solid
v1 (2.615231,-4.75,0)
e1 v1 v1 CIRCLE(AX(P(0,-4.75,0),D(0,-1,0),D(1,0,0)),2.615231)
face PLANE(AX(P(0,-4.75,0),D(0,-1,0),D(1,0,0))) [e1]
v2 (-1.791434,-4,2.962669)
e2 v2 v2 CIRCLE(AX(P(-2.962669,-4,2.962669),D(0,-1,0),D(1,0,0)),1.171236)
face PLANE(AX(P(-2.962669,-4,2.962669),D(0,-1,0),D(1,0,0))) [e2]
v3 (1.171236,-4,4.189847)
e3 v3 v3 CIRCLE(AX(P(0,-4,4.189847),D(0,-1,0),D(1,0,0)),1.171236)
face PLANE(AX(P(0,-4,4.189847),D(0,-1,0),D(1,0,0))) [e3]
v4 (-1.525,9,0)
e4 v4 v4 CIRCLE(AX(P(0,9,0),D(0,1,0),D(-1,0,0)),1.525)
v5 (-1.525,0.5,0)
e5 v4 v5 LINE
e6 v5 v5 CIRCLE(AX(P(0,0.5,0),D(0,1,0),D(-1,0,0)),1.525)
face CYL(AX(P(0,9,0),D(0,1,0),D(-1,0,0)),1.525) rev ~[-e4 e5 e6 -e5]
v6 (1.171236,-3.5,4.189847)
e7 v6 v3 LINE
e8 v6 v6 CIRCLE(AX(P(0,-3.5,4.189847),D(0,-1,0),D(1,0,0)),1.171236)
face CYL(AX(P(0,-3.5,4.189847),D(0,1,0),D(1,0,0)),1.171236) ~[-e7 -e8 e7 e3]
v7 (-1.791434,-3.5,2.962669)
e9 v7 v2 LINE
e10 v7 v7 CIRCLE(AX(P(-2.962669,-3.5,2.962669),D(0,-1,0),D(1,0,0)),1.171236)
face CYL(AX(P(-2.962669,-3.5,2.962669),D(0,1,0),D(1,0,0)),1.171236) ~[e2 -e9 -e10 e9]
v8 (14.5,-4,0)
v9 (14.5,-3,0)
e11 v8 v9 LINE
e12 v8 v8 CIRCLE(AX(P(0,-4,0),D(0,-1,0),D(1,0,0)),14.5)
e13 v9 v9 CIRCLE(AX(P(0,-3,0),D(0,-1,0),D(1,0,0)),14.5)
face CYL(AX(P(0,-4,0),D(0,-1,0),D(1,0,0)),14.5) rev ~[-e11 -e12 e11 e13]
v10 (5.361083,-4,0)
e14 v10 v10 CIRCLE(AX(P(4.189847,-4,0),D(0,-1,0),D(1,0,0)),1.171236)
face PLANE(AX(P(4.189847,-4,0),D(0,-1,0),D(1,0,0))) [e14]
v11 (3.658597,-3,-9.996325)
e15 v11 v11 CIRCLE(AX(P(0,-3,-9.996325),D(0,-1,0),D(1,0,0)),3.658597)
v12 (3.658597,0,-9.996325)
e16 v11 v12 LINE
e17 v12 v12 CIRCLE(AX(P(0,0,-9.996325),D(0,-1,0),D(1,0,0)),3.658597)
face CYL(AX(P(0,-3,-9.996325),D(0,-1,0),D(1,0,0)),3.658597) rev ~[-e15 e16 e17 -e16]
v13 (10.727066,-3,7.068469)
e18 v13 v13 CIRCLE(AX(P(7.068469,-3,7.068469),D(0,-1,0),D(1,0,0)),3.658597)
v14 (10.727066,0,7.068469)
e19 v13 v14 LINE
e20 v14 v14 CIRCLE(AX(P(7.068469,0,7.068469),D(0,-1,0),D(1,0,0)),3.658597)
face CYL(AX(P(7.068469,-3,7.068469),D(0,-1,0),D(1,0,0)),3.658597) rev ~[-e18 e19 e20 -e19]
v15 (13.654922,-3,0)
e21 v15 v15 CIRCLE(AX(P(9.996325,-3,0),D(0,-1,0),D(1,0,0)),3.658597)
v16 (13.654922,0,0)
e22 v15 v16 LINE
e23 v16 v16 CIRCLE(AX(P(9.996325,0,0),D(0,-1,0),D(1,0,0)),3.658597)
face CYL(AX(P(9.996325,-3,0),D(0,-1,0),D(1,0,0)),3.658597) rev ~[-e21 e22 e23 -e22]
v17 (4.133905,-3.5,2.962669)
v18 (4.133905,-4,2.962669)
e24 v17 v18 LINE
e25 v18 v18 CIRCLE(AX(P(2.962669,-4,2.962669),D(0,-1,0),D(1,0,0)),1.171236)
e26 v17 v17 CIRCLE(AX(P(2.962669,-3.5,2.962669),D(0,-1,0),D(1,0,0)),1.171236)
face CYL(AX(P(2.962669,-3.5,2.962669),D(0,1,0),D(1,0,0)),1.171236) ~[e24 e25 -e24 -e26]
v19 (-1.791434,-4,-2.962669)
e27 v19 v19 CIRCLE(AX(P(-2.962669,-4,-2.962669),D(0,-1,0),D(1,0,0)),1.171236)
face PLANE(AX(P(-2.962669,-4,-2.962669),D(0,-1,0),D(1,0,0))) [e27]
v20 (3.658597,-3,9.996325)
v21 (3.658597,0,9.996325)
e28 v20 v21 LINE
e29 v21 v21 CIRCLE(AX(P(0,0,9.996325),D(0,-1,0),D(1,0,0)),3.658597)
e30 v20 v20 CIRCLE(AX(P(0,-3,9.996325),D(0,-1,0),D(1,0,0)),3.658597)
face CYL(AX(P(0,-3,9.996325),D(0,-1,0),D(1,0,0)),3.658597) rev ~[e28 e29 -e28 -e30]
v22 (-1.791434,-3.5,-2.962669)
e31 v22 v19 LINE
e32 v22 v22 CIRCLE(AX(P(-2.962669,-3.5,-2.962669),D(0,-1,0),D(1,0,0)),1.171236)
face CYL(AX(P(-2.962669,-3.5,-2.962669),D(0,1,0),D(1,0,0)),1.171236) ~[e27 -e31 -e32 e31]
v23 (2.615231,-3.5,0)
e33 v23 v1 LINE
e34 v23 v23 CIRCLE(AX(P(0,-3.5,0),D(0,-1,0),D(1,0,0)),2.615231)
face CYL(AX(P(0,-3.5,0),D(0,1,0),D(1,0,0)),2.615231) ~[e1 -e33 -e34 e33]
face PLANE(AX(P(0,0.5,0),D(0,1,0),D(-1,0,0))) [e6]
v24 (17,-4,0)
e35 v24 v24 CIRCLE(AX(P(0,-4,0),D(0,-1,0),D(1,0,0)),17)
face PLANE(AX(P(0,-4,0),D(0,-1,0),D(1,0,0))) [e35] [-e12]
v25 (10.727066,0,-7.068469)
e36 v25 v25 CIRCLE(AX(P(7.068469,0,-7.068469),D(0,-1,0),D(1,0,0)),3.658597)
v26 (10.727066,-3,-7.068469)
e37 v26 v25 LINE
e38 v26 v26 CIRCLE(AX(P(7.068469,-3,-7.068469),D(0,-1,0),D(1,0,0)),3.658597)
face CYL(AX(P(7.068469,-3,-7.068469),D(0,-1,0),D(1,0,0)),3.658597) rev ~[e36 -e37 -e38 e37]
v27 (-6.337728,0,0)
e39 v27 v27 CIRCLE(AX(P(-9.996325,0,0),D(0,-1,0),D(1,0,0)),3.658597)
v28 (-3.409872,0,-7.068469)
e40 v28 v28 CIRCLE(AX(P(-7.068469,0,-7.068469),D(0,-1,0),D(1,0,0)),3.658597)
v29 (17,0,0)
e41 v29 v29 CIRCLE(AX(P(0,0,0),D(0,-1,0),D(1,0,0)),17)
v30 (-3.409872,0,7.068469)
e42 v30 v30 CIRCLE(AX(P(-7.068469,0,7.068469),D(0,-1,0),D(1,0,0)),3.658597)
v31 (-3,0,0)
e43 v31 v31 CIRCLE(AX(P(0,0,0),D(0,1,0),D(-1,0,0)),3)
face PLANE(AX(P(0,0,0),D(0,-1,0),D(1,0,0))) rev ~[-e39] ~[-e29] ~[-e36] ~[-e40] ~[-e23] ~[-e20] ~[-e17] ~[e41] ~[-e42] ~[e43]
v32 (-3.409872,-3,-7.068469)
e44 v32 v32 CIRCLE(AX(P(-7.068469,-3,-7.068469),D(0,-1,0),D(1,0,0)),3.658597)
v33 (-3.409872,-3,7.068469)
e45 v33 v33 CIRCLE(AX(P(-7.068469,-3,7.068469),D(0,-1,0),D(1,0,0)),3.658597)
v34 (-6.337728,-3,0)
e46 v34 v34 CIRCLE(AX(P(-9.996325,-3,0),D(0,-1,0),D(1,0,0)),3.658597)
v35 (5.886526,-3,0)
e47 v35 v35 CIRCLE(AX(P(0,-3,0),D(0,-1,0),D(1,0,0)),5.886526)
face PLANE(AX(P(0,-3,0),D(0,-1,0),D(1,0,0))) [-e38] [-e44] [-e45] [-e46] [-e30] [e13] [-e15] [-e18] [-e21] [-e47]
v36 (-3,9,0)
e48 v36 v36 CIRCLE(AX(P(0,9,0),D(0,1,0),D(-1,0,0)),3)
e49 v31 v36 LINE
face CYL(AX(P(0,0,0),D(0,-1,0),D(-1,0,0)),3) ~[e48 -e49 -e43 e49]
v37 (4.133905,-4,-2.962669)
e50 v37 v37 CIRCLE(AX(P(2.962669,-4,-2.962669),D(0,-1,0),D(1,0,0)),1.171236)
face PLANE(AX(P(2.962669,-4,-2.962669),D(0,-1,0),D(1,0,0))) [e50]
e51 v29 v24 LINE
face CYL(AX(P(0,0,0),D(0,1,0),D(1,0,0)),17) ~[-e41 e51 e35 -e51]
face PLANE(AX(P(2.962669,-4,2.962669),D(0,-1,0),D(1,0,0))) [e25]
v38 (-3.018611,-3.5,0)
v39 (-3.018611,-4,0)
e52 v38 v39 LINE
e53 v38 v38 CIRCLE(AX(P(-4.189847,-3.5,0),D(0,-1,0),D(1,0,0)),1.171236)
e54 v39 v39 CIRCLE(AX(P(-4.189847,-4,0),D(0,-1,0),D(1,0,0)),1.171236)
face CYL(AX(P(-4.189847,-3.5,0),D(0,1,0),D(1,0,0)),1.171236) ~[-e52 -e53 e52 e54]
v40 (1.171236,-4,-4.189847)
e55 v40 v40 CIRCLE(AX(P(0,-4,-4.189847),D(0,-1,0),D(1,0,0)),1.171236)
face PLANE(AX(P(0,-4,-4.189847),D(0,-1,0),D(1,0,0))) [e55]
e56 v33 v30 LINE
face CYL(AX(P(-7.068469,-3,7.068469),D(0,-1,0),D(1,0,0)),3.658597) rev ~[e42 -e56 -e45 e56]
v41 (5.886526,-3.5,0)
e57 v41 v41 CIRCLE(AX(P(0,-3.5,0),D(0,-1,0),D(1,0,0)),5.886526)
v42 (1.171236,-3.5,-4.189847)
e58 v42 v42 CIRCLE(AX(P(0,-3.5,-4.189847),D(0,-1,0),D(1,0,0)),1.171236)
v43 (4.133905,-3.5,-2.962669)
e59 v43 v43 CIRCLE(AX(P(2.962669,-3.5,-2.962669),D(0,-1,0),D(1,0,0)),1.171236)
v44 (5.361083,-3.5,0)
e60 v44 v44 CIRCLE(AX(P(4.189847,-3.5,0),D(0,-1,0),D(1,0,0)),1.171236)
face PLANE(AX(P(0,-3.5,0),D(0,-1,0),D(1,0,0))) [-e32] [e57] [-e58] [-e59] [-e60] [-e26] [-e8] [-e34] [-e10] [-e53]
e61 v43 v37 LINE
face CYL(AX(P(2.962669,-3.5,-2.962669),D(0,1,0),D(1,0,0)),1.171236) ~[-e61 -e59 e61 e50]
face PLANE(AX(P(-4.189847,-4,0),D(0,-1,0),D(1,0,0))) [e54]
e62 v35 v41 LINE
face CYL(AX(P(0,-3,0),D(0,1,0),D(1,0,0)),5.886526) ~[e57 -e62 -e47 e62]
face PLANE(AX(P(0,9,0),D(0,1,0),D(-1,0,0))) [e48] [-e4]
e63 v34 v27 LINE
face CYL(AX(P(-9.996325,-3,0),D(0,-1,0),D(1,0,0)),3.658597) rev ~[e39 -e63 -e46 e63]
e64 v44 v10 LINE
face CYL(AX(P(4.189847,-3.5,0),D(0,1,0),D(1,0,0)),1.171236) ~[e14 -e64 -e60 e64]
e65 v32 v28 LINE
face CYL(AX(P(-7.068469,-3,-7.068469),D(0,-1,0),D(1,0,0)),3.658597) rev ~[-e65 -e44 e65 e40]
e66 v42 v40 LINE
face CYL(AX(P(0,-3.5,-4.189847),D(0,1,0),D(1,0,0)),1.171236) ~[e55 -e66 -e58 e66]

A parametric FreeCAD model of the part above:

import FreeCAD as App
import Part
import Sketcher
from FreeCAD import Vector
Q = App.Units.Quantity

doc = App.newDocument("Part")
body = doc.addObject("PartDesign::Body", "Body")

# Sketch on XZ plane
sketch1 = body.newObject("Sketcher::SketchObject", "Sketch")
sketch1.AttachmentSupport = (doc.getObject("XZ_Plane"), [""])
sketch1.MapMode = "FlatFace"
sketch1.addGeometry(Part.Circle(Vector(0, 0, 0), Vector(0, 0, 1), 17), False)
sketch1.addConstraint([
    Sketcher.Constraint("Coincident", 0, 3, -1, 1),
    Sketcher.Constraint("Diameter", 0, Q("34 mm")),
])
pad1 = body.newObject("PartDesign::Pad", "Pad")
pad1.Profile = sketch1
pad1.Length = 4

# Sketch on XZ plane
sketch2 = body.newObject("Sketcher::SketchObject", "Sketch001")
sketch2.AttachmentSupport = (doc.getObject("XZ_Plane"), [""])
sketch2.MapMode = "FlatFace"
sketch2.AttachmentOffset = App.Placement(Vector(0, 0, 4), App.Rotation())
sketch2.addGeometry(Part.Circle(Vector(0, 0, 0), Vector(0, 0, 1), 14), False)
sketch2.addConstraint([
    Sketcher.Constraint("Coincident", 0, 3, -1, 1),
    Sketcher.Constraint("Diameter", 0, Q("29 mm")),
])
pocket1 = body.newObject("PartDesign::Pocket", "Pocket")
pocket1.Profile = sketch2
pocket1.Length = 1

# Sketch on XZ plane
sketch3 = body.newObject("Sketcher::SketchObject", "Sketch002")
sketch3.AttachmentSupport = (doc.getObject("XZ_Plane"), [""])
sketch3.MapMode = "FlatFace"
sketch3.AttachmentOffset = App.Placement(Vector(0, 0, 3), App.Rotation())
sketch3.addGeometry([
    Part.Circle(Vector(-7.1, 7.1, 0), Vector(0, 0, 1), 3.7),  # 0
    Part.Circle(Vector(-10, 0, 0), Vector(0, 0, 1), 3.7),  # 1
    Part.Circle(Vector(0, 10, 0), Vector(0, 0, 1), 3.7),  # 2
    Part.Circle(Vector(7.1, 7.1, 0), Vector(0, 0, 1), 3.7),  # 3
    Part.Circle(Vector(10, 0, 0), Vector(0, 0, 1), 3.7),  # 4
    Part.Circle(Vector(7.1, -7.1, 0), Vector(0, 0, 1), 3.7),  # 5
    Part.Circle(Vector(0, -10, 0), Vector(0, 0, 1), 3.7),  # 6
    Part.Circle(Vector(-7.1, -7.1, 0), Vector(0, 0, 1), 3.7),  # 7
], False)
sketch3.addConstraint([
    Sketcher.Constraint("Equal", 0, 1),
    Sketcher.Constraint("Equal", 1, 2),
    Sketcher.Constraint("Equal", 2, 3),
    Sketcher.Constraint("Equal", 3, 4),
    Sketcher.Constraint("Equal", 4, 5),
    Sketcher.Constraint("Equal", 5, 6),
    Sketcher.Constraint("Equal", 6, 7),
    Sketcher.Constraint("Symmetric", 1, 3, 4, 3, -1, 1),
    Sketcher.Constraint("Symmetric", 0, 3, 5, 3, -1, 1),
    Sketcher.Constraint("Symmetric", 2, 3, 6, 3, -1, 1),
    Sketcher.Constraint("Symmetric", 3, 3, 7, 3, -1, 1),
    Sketcher.Constraint("Symmetric", 0, 3, 3, 3, -2),
    Sketcher.Constraint("PointOnObject", 1, 3, -1),
    Sketcher.Constraint("PointOnObject", 2, 3, -2),
    Sketcher.Constraint("Diameter", 0, Q("7.317194 mm")),
    Sketcher.Constraint("DistanceX", 0, 3, -1, 1, Q("7.068469 mm")),
    Sketcher.Constraint("DistanceY", -1, 1, 0, 3, Q("7.068469 mm")),
    Sketcher.Constraint("DistanceX", 1, 3, 4, 3, Q("19.99265 mm")),
    Sketcher.Constraint("DistanceY", -1, 1, 2, 3, Q("9.996325 mm")),
])
pocket2 = body.newObject("PartDesign::Pocket", "Pocket001")
pocket2.Profile = sketch3
pocket2.Length = 25

# Sketch on XZ plane
sketch4 = body.newObject("Sketcher::SketchObject", "Sketch003")
sketch4.AttachmentSupport = (doc.getObject("XZ_Plane"), [""])
sketch4.MapMode = "FlatFace"
sketch4.AttachmentOffset = App.Placement(Vector(0, 0, 3), App.Rotation())
sketch4.addGeometry(Part.Circle(Vector(0, 0, 0), Vector(0, 0, 1), 6), False)
sketch4.addConstraint([
    Sketcher.Constraint("Coincident", 0, 3, -1, 1),
    Sketcher.Constraint("Diameter", 0, Q("11.773053 mm")),
])
pad2 = body.newObject("PartDesign::Pad", "Pad001")
pad2.Profile = sketch4
pad2.Length = 0.5

# Sketch on XZ plane
sketch5 = body.newObject("Sketcher::SketchObject", "Sketch004")
sketch5.AttachmentSupport = (doc.getObject("XZ_Plane"), [""])
sketch5.MapMode = "FlatFace"
sketch5.AttachmentOffset = App.Placement(Vector(0, 0, 3.5), App.Rotation())
sketch5.addGeometry([
    Part.Circle(Vector(-3, 3, 0), Vector(0, 0, 1), 1.2),  # 0
    Part.Circle(Vector(0, 4.2, 0), Vector(0, 0, 1), 1.2),  # 1
    Part.Circle(Vector(3, 3, 0), Vector(0, 0, 1), 1.2),  # 2
    Part.Circle(Vector(4.2, 0, 0), Vector(0, 0, 1), 1.2),  # 3
    Part.Circle(Vector(3, -3, 0), Vector(0, 0, 1), 1.2),  # 4
    Part.Circle(Vector(0, -4.2, 0), Vector(0, 0, 1), 1.2),  # 5
    Part.Circle(Vector(-3, -3, 0), Vector(0, 0, 1), 1.2),  # 6
    Part.Circle(Vector(-4.2, 0, 0), Vector(0, 0, 1), 1.2),  # 7
], False)
sketch5.addConstraint([
    Sketcher.Constraint("Equal", 0, 1),
    Sketcher.Constraint("Equal", 1, 2),
    Sketcher.Constraint("Equal", 2, 3),
    Sketcher.Constraint("Equal", 3, 4),
    Sketcher.Constraint("Equal", 4, 5),
    Sketcher.Constraint("Equal", 5, 6),
    Sketcher.Constraint("Equal", 6, 7),
    Sketcher.Constraint("Symmetric", 0, 3, 4, 3, -1, 1),
    Sketcher.Constraint("Symmetric", 1, 3, 5, 3, -1, 1),
    Sketcher.Constraint("Symmetric", 2, 3, 6, 3, -1, 1),
    Sketcher.Constraint("Symmetric", 3, 3, 7, 3, -1, 1),
    Sketcher.Constraint("Symmetric", 0, 3, 2, 3, -2),
    Sketcher.Constraint("PointOnObject", 1, 3, -2),
    Sketcher.Constraint("PointOnObject", 3, 3, -1),
    Sketcher.Constraint("Diameter", 0, Q("2.342471 mm")),
    Sketcher.Constraint("DistanceX", 0, 3, -1, 1, Q("2.962669 mm")),
    Sketcher.Constraint("DistanceY", -1, 1, 0, 3, Q("2.962669 mm")),
    Sketcher.Constraint("DistanceY", -1, 1, 1, 3, Q("4.189847 mm")),
    Sketcher.Constraint("DistanceX", -1, 1, 3, 3, Q("4.189847 mm")),
])
pad3 = body.newObject("PartDesign::Pad", "Pad002")
pad3.Profile = sketch5
pad3.Length = 0.5

# Sketch on XZ plane
sketch6 = body.newObject("Sketcher::SketchObject", "Sketch005")
sketch6.AttachmentSupport = (doc.getObject("XZ_Plane"), [""])
sketch6.MapMode = "FlatFace"
sketch6.AttachmentOffset = App.Placement(Vector(0, 0, 3.5), App.Rotation())
sketch6.addGeometry(Part.Circle(Vector(0, 0, 0), Vector(0, 0, 1), 2.6), False)
sketch6.addConstraint([
    Sketcher.Constraint("Coincident", 0, 3, -1, 1),
    Sketcher.Constraint("Diameter", 0, Q("5.230461 mm")),
])
pad4 = body.newObject("PartDesign::Pad", "Pad003")
pad4.Profile = sketch6
pad4.Length = 1.25

# Sketch on XZ plane
sketch7 = body.newObject("Sketcher::SketchObject", "Sketch006")
sketch7.AttachmentSupport = (doc.getObject("XZ_Plane"), [""])
sketch7.MapMode = "FlatFace"
sketch7.addGeometry(Part.Circle(Vector(0, 0, 0), Vector(0, 0, 1), 3), False)
sketch7.addConstraint([
    Sketcher.Constraint("Coincident", 0, 3, -1, 1),
    Sketcher.Constraint("Diameter", 0, Q("6 mm")),
])
pad5 = body.newObject("PartDesign::Pad", "Pad004")
pad5.Profile = sketch7
pad5.Length = 9
pad5.Reversed = True

# Sketch on XZ plane
sketch8 = body.newObject("Sketcher::SketchObject", "Sketch007")
sketch8.AttachmentSupport = (doc.getObject("XZ_Plane"), [""])
sketch8.MapMode = "FlatFace"
sketch8.AttachmentOffset = App.Placement(Vector(0, 0, -9), App.Rotation())
sketch8.addGeometry(Part.Circle(Vector(0, 0, 0), Vector(0, 0, 1), 1.5), False)
sketch8.addConstraint([
    Sketcher.Constraint("Coincident", 0, 3, -1, 1),
    Sketcher.Constraint("Diameter", 0, Q("3.05 mm")),
])
pocket3 = body.newObject("PartDesign::Pocket", "Pocket002")
pocket3.Profile = sketch8
pocket3.Length = 8.5
pocket3.Reversed = True

doc.recompute()
